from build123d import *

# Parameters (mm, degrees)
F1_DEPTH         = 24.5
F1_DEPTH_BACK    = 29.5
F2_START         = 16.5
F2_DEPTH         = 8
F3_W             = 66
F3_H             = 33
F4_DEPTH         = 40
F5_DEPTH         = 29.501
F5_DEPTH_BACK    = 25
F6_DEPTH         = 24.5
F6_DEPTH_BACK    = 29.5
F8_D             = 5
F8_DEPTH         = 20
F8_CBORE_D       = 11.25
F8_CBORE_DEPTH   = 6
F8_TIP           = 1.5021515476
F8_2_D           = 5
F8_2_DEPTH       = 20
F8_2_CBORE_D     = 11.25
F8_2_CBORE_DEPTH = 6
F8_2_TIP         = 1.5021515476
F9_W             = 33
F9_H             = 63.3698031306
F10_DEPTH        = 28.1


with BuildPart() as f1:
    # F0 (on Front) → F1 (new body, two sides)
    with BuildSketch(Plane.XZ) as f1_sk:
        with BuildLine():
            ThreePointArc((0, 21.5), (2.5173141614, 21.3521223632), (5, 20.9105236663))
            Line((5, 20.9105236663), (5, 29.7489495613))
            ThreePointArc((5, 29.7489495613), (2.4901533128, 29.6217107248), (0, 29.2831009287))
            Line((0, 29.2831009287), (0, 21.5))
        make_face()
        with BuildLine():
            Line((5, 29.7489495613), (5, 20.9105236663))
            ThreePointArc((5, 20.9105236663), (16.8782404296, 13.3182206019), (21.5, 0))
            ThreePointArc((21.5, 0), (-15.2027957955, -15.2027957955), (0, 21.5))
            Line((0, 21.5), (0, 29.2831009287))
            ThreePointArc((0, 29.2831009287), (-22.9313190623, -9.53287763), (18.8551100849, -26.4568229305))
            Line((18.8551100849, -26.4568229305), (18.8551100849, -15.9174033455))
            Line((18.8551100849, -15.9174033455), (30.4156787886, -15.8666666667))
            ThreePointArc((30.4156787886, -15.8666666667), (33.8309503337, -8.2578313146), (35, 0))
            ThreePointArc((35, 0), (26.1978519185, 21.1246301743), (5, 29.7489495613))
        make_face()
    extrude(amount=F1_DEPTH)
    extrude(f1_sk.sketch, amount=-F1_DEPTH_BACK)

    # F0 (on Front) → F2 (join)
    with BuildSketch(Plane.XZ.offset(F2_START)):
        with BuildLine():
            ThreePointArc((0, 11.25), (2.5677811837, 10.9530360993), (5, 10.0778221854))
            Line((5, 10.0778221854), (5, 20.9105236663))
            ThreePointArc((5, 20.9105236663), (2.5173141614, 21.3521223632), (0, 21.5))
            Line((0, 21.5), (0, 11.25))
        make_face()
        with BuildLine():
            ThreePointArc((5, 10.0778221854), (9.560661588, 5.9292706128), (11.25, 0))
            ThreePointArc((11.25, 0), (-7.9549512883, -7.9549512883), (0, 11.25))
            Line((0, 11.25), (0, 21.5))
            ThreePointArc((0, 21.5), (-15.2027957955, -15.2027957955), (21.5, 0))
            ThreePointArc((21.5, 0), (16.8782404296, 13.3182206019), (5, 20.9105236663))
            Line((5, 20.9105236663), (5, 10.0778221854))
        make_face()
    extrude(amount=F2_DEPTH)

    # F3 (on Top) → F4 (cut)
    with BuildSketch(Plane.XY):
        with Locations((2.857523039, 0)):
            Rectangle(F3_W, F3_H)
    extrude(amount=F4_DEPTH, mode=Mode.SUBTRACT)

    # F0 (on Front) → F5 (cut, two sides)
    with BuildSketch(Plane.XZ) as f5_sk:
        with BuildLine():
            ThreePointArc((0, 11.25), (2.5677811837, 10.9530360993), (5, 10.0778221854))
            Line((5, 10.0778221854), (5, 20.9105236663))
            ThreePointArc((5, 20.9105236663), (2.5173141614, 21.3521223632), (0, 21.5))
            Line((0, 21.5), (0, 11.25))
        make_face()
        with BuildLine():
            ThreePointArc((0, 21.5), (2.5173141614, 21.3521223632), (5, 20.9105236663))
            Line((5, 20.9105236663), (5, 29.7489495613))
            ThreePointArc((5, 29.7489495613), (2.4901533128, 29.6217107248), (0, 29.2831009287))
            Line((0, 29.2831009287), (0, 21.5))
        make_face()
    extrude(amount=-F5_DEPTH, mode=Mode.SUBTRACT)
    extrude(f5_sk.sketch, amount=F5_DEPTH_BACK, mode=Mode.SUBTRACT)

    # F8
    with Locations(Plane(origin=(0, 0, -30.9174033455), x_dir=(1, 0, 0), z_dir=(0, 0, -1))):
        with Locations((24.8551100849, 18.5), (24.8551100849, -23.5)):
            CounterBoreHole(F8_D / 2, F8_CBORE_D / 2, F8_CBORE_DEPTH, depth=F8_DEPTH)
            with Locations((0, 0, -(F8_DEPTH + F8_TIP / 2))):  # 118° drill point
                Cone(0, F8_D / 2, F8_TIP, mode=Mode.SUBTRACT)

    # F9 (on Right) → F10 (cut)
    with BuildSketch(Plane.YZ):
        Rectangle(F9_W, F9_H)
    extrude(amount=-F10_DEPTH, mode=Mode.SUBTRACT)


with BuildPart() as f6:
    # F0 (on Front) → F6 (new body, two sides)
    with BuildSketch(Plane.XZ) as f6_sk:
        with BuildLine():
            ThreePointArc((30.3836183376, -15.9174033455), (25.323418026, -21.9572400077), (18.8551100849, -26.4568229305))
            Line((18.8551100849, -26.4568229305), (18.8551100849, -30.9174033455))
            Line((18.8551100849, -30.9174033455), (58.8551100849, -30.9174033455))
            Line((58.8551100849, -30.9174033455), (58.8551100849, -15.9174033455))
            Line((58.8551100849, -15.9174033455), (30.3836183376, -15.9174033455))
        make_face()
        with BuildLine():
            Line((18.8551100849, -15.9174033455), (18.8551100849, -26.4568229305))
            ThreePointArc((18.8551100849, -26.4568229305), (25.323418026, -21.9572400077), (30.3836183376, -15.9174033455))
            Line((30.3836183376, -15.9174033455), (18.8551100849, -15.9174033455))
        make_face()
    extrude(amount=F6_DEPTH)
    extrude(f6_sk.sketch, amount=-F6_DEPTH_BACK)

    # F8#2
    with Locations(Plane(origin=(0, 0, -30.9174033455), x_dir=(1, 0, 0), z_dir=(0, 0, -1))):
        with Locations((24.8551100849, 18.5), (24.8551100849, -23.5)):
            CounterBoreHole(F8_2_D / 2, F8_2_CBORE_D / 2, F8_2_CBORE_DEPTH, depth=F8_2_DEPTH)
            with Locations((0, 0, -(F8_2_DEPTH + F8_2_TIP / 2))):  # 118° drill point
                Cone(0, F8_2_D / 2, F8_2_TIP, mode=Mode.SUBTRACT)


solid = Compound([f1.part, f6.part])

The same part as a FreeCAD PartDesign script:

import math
import FreeCAD as App
import Part
import Sketcher
Q = App.Units.Quantity


def add_polygon(sketch, points):
    """Adds a closed chain of lines whose ends are joined by coincident constraints."""
    first, n = sketch.GeometryCount, len(points)
    for a, b in zip(points, points[1:] + points[:1]):
        sketch.addGeometry(Part.LineSegment(App.Vector(*a, 0), App.Vector(*b, 0)), False)
    for i in range(n):
        sketch.addConstraint(Sketcher.Constraint("Coincident", first + i, 2, first + (i + 1) % n, 1))

doc = App.newDocument("Part")
body = doc.addObject("PartDesign::Body", "Body")

# Sketch on XZ plane
sketch1 = body.newObject("Sketcher::SketchObject", "Sketch")
sketch1.AttachmentSupport = (doc.getObject("XZ_Plane"), [""])
sketch1.MapMode = "FlatFace"
sketch1.addGeometry([
    Part.ArcOfCircle(Part.Circle(App.Vector(5, 0, 0), App.Vector(0, 0, 1), 30), math.radians(90.48), math.radians(100.16)),  # 0
    Part.ArcOfCircle(Part.Circle(App.Vector(5, 0, 0), App.Vector(0, 0, 1), 30), math.radians(100), math.radians(297)),  # 1
    Part.LineSegment(App.Vector(19, -26, 0), App.Vector(19, -16, 0)),  # 2
    Part.LineSegment(App.Vector(19, -16, 0), App.Vector(30, -16, 0)),  # 3
    Part.ArcOfCircle(Part.Circle(App.Vector(5, 0, 0), App.Vector(0, 0, 1), 30), math.radians(-32), math.radians(0)),  # 4
    Part.ArcOfCircle(Part.Circle(App.Vector(5, 0, 0), App.Vector(0, 0, 1), 30), math.radians(0), math.radians(90)),  # 5
    Part.ArcOfCircle(Part.Circle(App.Vector(0, 0, 0), App.Vector(0, 0, 1), 21), math.radians(76.55), math.radians(90)),  # 6
    Part.ArcOfCircle(Part.Circle(App.Vector(0, 0, 0), App.Vector(0, 0, 1), 22), math.radians(0), math.radians(77)),  # 7
    Part.ArcOfCircle(Part.Circle(App.Vector(0, 0, 0), App.Vector(0, 0, 1), 22), math.radians(90), math.radians(360)),  # 8
], False)
sketch1.addConstraint([
    Sketcher.Constraint("Tangent", 0, 2, 1, 1),
    Sketcher.Constraint("Coincident", 1, 2, 2, 1),
    Sketcher.Constraint("Coincident", 2, 2, 3, 1),
    Sketcher.Constraint("Coincident", 3, 2, 4, 1),
    Sketcher.Constraint("Tangent", 4, 2, 5, 1),
    Sketcher.Constraint("Tangent", 5, 2, 0, 1),
    Sketcher.Constraint("Tangent", 6, 1, 7, 2),
    Sketcher.Constraint("Tangent", 7, 1, 8, 2),
    Sketcher.Constraint("Tangent", 8, 1, 6, 2),
    Sketcher.Constraint("Vertical", 2),
    Sketcher.Constraint("Coincident", 6, 3, -1, 1),
    Sketcher.Constraint("Coincident", 4, 3, 0, 3),
    Sketcher.Constraint("Equal", 0, 1),
    Sketcher.Constraint("PointOnObject", 0, 3, -1),
    Sketcher.Constraint("PointOnObject", 0, 2, -2),
    Sketcher.Constraint("PointOnObject", 4, 2, -1),
    Sketcher.Constraint("PointOnObject", 7, 1, -1),
    Sketcher.Constraint("PointOnObject", 8, 1, -2),
    Sketcher.Constraint("Vertical", 5, 2, 6, 1),
    Sketcher.Constraint("Radius", 6, Q("21.5 mm")),
    Sketcher.Constraint("Radius", 0, Q("29.75 mm")),
    Sketcher.Constraint("DistanceX", -1, 1, 4, 2, Q("35 mm")),
    Sketcher.Constraint("DistanceX", -1, 1, 5, 2, Q("5 mm")),
    Sketcher.Constraint("DistanceY", 2, 1, 2, 2, Q("10.53942 mm")),
    Sketcher.Constraint("Distance", 3, Q("11.56068 mm")),
    Sketcher.Constraint("DistanceX", -1, 1, 1, 2, Q("18.85511 mm")),
])
pad1 = body.newObject("PartDesign::Pad", "Pad")
pad1.Profile = sketch1
pad1.Type = "TwoLengths"
pad1.Length = 24.5
pad1.Length2 = 29.5

# Sketch on XZ plane
sketch2 = body.newObject("Sketcher::SketchObject", "Sketch001")
sketch2.AttachmentSupport = (doc.getObject("XZ_Plane"), [""])
sketch2.MapMode = "FlatFace"
sketch2.AttachmentOffset = App.Placement(App.Vector(0, 0, 16.5), App.Rotation())
sketch2.addGeometry([
    Part.ArcOfCircle(Part.Circle(App.Vector(0, 0, 0), App.Vector(0, 0, 1), 21), math.radians(76.55), math.radians(90)),  # 0
    Part.ArcOfCircle(Part.Circle(App.Vector(0, 0, 0), App.Vector(0, 0, 1), 22), math.radians(90), math.radians(360)),  # 1
    Part.ArcOfCircle(Part.Circle(App.Vector(0, 0, 0), App.Vector(0, 0, 1), 22), math.radians(0), math.radians(77)),  # 2
    Part.ArcOfCircle(Part.Circle(App.Vector(0, 0, 0), App.Vector(0, 0, 1), 11), math.radians(64), math.radians(90)),  # 3
    Part.ArcOfCircle(Part.Circle(App.Vector(0, 0, 0), App.Vector(0, 0, 1), 11), math.radians(0), math.radians(64)),  # 4
    Part.ArcOfCircle(Part.Circle(App.Vector(0, 0, 0), App.Vector(0, 0, 1), 11), math.radians(90), math.radians(360)),  # 5
], False)
sketch2.addConstraint([
    Sketcher.Constraint("Tangent", 0, 2, 1, 1),
    Sketcher.Constraint("Tangent", 1, 2, 2, 1),
    Sketcher.Constraint("Tangent", 2, 2, 0, 1),
    Sketcher.Constraint("Tangent", 3, 1, 4, 2),
    Sketcher.Constraint("Tangent", 4, 1, 5, 2),
    Sketcher.Constraint("Tangent", 5, 1, 3, 2),
    Sketcher.Constraint("Coincident", 0, 3, -1, 1),
    Sketcher.Constraint("Coincident", 3, 3, -1, 1),
    Sketcher.Constraint("PointOnObject", 0, 2, -2),
    Sketcher.Constraint("PointOnObject", 1, 2, -1),
    Sketcher.Constraint("PointOnObject", 4, 1, -1),
    Sketcher.Constraint("PointOnObject", 5, 1, -2),
    Sketcher.Constraint("Vertical", 2, 2, 3, 1),
    Sketcher.Constraint("Radius", 0, Q("21.5 mm")),
    Sketcher.Constraint("Radius", 3, Q("11.25 mm")),
    Sketcher.Constraint("DistanceX", -1, 1, 2, 2, Q("5 mm")),
])
pad2 = body.newObject("PartDesign::Pad", "Pad001")
pad2.Profile = sketch2
pad2.Length = 8

# Sketch on XY plane
sketch3 = body.newObject("Sketcher::SketchObject", "Sketch002")
sketch3.AttachmentSupport = (doc.getObject("XY_Plane"), [""])
sketch3.MapMode = "FlatFace"
add_polygon(sketch3, [(-30, 16), (-30, -16), (36, -16), (36, 16)])  # lines 0-3
sketch3.addConstraint([
    Sketcher.Constraint("Vertical", 0),
    Sketcher.Constraint("Horizontal", 1),
    Sketcher.Constraint("Vertical", 2),
    Sketcher.Constraint("Horizontal", 3),
    Sketcher.Constraint("DistanceX", 1, 1, 1, 2, Q("66 mm")),
    Sketcher.Constraint("DistanceY", 0, 2, 0, 1, Q("33 mm")),
    Sketcher.Constraint("DistanceY", 0, 2, -1, 1, Q("16.5 mm")),
    Sketcher.Constraint("DistanceX", 0, 2, -1, 1, Q("30.142477 mm")),
])
pocket1 = body.newObject("PartDesign::Pocket", "Pocket")
pocket1.Profile = sketch3
pocket1.Length = 40
pocket1.Reversed = True

# Sketch on XZ plane
sketch4 = body.newObject("Sketcher::SketchObject", "Sketch003")
sketch4.AttachmentSupport = (doc.getObject("XZ_Plane"), [""])
sketch4.MapMode = "FlatFace"
sketch4.addGeometry([
    Part.ArcOfCircle(Part.Circle(App.Vector(0, 0, 0), App.Vector(0, 0, 1), 11), math.radians(64), math.radians(90)),
    Part.LineSegment(App.Vector(5, 10, 0), App.Vector(5, 30, 0)),
    Part.ArcOfCircle(Part.Circle(App.Vector(5, 0, 0), App.Vector(0, 0, 1), 30), math.radians(90.48), math.radians(100.16)),
    Part.LineSegment(App.Vector(0, 29, 0), App.Vector(0, 11, 0)),
], False)
sketch4.addConstraint([
    Sketcher.Constraint("Coincident", 0, 1, 1, 1),
    Sketcher.Constraint("Coincident", 1, 2, 2, 1),
    Sketcher.Constraint("Coincident", 2, 2, 3, 1),
    Sketcher.Constraint("Coincident", 3, 2, 0, 2),
    Sketcher.Constraint("Vertical", 1),
    Sketcher.Constraint("Vertical", 3),
    Sketcher.Constraint("Coincident", 0, 3, -1, 1),
    Sketcher.Constraint("PointOnObject", 2, 3, -1),
    Sketcher.Constraint("PointOnObject", 2, 2, -2),
    Sketcher.Constraint("Radius", 0, Q("11.25 mm")),
    Sketcher.Constraint("Radius", 2, Q("29.75 mm")),
    Sketcher.Constraint("DistanceX", -1, 1, 0, 1, Q("5 mm")),
    Sketcher.Constraint("DistanceX", -1, 1, 2, 3, Q("5.25 mm")),
])
pocket2 = body.newObject("PartDesign::Pocket", "Pocket001")
pocket2.Profile = sketch4
pocket2.Type = "ThroughAll"
pocket2.Midplane = True

# Sketch on XY plane
sketch5 = body.newObject("Sketcher::SketchObject", "Sketch004")
sketch5.AttachmentSupport = (doc.getObject("XY_Plane"), [""])
sketch5.MapMode = "FlatFace"
sketch5.AttachmentOffset = App.Placement(App.Vector(0, 0, -30.917403), App.Rotation())
sketch5.addGeometry([
    Part.Circle(App.Vector(24.9, -18.5, 0), App.Vector(0, 0, 1), 2.5),
    Part.Circle(App.Vector(24.9, 23.5, 0), App.Vector(0, 0, 1), 2.5),
], False)
sketch5.addConstraint([
    Sketcher.Constraint("Equal", 0, 1),
    Sketcher.Constraint("Vertical", 0, 3, 1, 3),
    Sketcher.Constraint("Diameter", 0, Q("5 mm")),
    Sketcher.Constraint("DistanceY", 0, 3, 1, 3, Q("42 mm")),
    Sketcher.Constraint("DistanceY", 0, 3, -1, 1, Q("18.5 mm")),
    Sketcher.Constraint("DistanceX", -1, 1, 0, 3, Q("24.85511 mm")),
])
doc.recompute()
hole = body.newObject("PartDesign::Hole", "Hole")
hole.Profile = sketch5
hole.ThreadType = "None"
hole.Diameter = 5
hole.DepthType = "Dimension"
hole.Depth = 20
hole.DrillPoint = "Angled"
hole.DrillPointAngle = 118
hole.HoleCutType = "Counterbore"
hole.HoleCutDiameter = 11.25
hole.HoleCutDepth = 6
hole.Reversed = True

# Sketch on YZ plane
sketch6 = body.newObject("Sketcher::SketchObject", "Sketch005")
sketch6.AttachmentSupport = (doc.getObject("YZ_Plane"), [""])
sketch6.MapMode = "FlatFace"
add_polygon(sketch6, [(-16, 32), (-16, -32), (16, -32), (16, 32)])  # lines 0-3
sketch6.addConstraint([
    Sketcher.Constraint("Vertical", 0),
    Sketcher.Constraint("Horizontal", 1),
    Sketcher.Constraint("Vertical", 2),
    Sketcher.Constraint("Horizontal", 3),
    Sketcher.Constraint("Symmetric", 0, 2, 2, 2, -1, 1),
    Sketcher.Constraint("DistanceX", 1, 1, 1, 2, Q("33 mm")),
    Sketcher.Constraint("DistanceY", 0, 2, -1, 1, Q("31.684902 mm")),
])
pocket3 = body.newObject("PartDesign::Pocket", "Pocket002")
pocket3.Profile = sketch6
pocket3.Length = 28.1
body2 = doc.addObject("PartDesign::Body", "Body001")

# Sketch on XZ plane
sketch7 = body2.newObject("Sketcher::SketchObject", "Sketch006")
sketch7.AttachmentSupport = (doc.getObject("XZ_Plane001"), [""])
sketch7.MapMode = "FlatFace"
add_polygon(sketch7, [(19, -31), (59, -31), (59, -16), (19, -16)])  # lines 0-3
sketch7.addConstraint([
    Sketcher.Constraint("Horizontal", 0),
    Sketcher.Constraint("Vertical", 1),
    Sketcher.Constraint("Horizontal", 2),
    Sketcher.Constraint("Vertical", 3),
    Sketcher.Constraint("DistanceX", 0, 1, 0, 2, Q("40 mm")),
    Sketcher.Constraint("DistanceY", 1, 1, 1, 2, Q("15 mm")),
    Sketcher.Constraint("DistanceX", -1, 1, 0, 2, Q("58.85511 mm")),
    Sketcher.Constraint("DistanceY", 0, 2, -1, 1, Q("30.917403 mm")),
])
pad3 = body2.newObject("PartDesign::Pad", "Pad002")
pad3.Profile = sketch7
pad3.Type = "TwoLengths"
pad3.Length = 24.5
pad3.Length2 = 29.5

# Sketch on XY plane
sketch8 = body2.newObject("Sketcher::SketchObject", "Sketch007")
sketch8.AttachmentSupport = (doc.getObject("XY_Plane001"), [""])
sketch8.MapMode = "FlatFace"
sketch8.AttachmentOffset = App.Placement(App.Vector(0, 0, -30.917403), App.Rotation())
sketch8.addGeometry([
    Part.Circle(App.Vector(24.9, -18.5, 0), App.Vector(0, 0, 1), 2.5),
    Part.Circle(App.Vector(24.9, 23.5, 0), App.Vector(0, 0, 1), 2.5),
], False)
sketch8.addConstraint([
    Sketcher.Constraint("Equal", 0, 1),
    Sketcher.Constraint("Vertical", 0, 3, 1, 3),
    Sketcher.Constraint("Diameter", 0, Q("5 mm")),
    Sketcher.Constraint("DistanceY", 0, 3, 1, 3, Q("42 mm")),
    Sketcher.Constraint("DistanceY", 0, 3, -1, 1, Q("18.5 mm")),
    Sketcher.Constraint("DistanceX", -1, 1, 0, 3, Q("24.85511 mm")),
])
doc.recompute()
hole2 = body2.newObject("PartDesign::Hole", "Hole001")
hole2.Profile = sketch8
hole2.ThreadType = "None"
hole2.Diameter = 5
hole2.DepthType = "Dimension"
hole2.Depth = 20
hole2.DrillPoint = "Angled"
hole2.DrillPointAngle = 118
hole2.HoleCutType = "Counterbore"
hole2.HoleCutDiameter = 11.25
hole2.HoleCutDepth = 6
hole2.Reversed = True

doc.recompute()
